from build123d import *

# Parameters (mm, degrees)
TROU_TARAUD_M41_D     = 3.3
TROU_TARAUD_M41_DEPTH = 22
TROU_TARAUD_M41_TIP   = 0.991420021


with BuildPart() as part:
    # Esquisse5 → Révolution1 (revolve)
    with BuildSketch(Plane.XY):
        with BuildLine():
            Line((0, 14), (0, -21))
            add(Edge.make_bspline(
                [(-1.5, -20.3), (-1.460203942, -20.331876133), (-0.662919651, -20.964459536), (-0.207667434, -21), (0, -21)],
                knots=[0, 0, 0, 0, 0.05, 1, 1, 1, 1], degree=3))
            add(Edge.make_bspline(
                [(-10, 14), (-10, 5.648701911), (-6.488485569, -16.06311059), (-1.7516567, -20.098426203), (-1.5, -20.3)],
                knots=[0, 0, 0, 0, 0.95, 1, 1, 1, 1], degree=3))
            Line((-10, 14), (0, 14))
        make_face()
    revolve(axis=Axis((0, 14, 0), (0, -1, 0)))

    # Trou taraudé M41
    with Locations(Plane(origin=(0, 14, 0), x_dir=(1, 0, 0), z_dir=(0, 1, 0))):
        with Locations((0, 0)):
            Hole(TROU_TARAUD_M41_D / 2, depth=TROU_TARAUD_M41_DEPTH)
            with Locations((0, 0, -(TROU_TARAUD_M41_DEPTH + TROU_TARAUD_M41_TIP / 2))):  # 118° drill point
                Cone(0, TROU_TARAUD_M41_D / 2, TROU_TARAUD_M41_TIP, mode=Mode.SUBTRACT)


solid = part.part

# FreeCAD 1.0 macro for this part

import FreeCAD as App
import Part
import Sketcher
from FreeCAD import Vector
Q = App.Units.Quantity

doc = App.newDocument("Part")
body = doc.addObject("PartDesign::Body", "Body")

# Sketch on XY plane
sketch1 = doc.addObject("Sketcher::SketchObject", "Sketch")
body.addObject(sketch1)
sketch1.AttachmentSupport = (doc.XY_Plane, [""])
sketch1.MapMode = "FlatFace"
sketch1.addGeometry(Part.LineSegment(Vector(0, -21, 0), Vector(0, 14, 0)), False)
sketch1.addGeometry(Part.LineSegment(Vector(0, 14, 0), Vector(-10, 14, 0)), False)
sketch1.addGeometry(Part.BSplineCurve([Vector(-10, 14, 0), Vector(-10, 5.648702, 0), Vector(-6.488486, -16.063111, 0), Vector(-1.751657, -20.098426, 0), Vector(-1.5, -20.3, 0)], [4, 1, 4], [0, 0.95, 1], False, 3, [1, 1, 1, 1, 1], False), False)
sketch1.addGeometry(Part.BSplineCurve([Vector(-1.5, -20.3, 0), Vector(-1.460204, -20.331876, 0), Vector(-0.66292, -20.96446, 0), Vector(-0.207667, -21, 0), Vector(0, -21, 0)], [4, 1, 4], [0, 0.05, 1], False, 3, [1, 1, 1, 1, 1], False), False)
sketch1.addConstraint(Sketcher.Constraint("Block", 2))
sketch1.addConstraint(Sketcher.Constraint("Block", 3))
sketch1.addConstraint(Sketcher.Constraint("Coincident", 0, 2, 1, 1))
sketch1.addConstraint(Sketcher.Constraint("Coincident", 1, 2, 2, 1))
sketch1.addConstraint(Sketcher.Constraint("Coincident", 3, 2, 0, 1))
sketch1.addConstraint(Sketcher.Constraint("Vertical", 0))
sketch1.addConstraint(Sketcher.Constraint("Horizontal", 1))
revolution = doc.addObject("PartDesign::Revolution", "Revolution")
body.addObject(revolution)
revolution.Profile = sketch1
revolution.ReferenceAxis = (sketch1, ["V_Axis"])
revolution.Angle = 360

# Sketch on XZ plane
sketch2 = doc.addObject("Sketcher::SketchObject", "Sketch001")
body.addObject(sketch2)
sketch2.AttachmentSupport = (doc.XZ_Plane, [""])
sketch2.MapMode = "FlatFace"
sketch2.AttachmentOffset = App.Placement(Vector(0, 0, -14), App.Rotation())
sketch2.addGeometry(Part.Circle(Vector(0, 0, 0), Vector(0, 0, 1), 1.6), False)
sketch2.addConstraint(Sketcher.Constraint("Coincident", 0, 3, -1, 1))
sketch2.addConstraint(Sketcher.Constraint("Diameter", 0, Q("3.3 mm")))
doc.recompute()
hole = doc.addObject("PartDesign::Hole", "Hole")
body.addObject(hole)
hole.Profile = sketch2
hole.ThreadType = "None"
hole.Diameter = 3.3
hole.DepthType = "Dimension"
hole.Depth = 22
hole.DrillPoint = "Angled"
hole.DrillPointAngle = 118
hole.Reversed = True

doc.recompute()
